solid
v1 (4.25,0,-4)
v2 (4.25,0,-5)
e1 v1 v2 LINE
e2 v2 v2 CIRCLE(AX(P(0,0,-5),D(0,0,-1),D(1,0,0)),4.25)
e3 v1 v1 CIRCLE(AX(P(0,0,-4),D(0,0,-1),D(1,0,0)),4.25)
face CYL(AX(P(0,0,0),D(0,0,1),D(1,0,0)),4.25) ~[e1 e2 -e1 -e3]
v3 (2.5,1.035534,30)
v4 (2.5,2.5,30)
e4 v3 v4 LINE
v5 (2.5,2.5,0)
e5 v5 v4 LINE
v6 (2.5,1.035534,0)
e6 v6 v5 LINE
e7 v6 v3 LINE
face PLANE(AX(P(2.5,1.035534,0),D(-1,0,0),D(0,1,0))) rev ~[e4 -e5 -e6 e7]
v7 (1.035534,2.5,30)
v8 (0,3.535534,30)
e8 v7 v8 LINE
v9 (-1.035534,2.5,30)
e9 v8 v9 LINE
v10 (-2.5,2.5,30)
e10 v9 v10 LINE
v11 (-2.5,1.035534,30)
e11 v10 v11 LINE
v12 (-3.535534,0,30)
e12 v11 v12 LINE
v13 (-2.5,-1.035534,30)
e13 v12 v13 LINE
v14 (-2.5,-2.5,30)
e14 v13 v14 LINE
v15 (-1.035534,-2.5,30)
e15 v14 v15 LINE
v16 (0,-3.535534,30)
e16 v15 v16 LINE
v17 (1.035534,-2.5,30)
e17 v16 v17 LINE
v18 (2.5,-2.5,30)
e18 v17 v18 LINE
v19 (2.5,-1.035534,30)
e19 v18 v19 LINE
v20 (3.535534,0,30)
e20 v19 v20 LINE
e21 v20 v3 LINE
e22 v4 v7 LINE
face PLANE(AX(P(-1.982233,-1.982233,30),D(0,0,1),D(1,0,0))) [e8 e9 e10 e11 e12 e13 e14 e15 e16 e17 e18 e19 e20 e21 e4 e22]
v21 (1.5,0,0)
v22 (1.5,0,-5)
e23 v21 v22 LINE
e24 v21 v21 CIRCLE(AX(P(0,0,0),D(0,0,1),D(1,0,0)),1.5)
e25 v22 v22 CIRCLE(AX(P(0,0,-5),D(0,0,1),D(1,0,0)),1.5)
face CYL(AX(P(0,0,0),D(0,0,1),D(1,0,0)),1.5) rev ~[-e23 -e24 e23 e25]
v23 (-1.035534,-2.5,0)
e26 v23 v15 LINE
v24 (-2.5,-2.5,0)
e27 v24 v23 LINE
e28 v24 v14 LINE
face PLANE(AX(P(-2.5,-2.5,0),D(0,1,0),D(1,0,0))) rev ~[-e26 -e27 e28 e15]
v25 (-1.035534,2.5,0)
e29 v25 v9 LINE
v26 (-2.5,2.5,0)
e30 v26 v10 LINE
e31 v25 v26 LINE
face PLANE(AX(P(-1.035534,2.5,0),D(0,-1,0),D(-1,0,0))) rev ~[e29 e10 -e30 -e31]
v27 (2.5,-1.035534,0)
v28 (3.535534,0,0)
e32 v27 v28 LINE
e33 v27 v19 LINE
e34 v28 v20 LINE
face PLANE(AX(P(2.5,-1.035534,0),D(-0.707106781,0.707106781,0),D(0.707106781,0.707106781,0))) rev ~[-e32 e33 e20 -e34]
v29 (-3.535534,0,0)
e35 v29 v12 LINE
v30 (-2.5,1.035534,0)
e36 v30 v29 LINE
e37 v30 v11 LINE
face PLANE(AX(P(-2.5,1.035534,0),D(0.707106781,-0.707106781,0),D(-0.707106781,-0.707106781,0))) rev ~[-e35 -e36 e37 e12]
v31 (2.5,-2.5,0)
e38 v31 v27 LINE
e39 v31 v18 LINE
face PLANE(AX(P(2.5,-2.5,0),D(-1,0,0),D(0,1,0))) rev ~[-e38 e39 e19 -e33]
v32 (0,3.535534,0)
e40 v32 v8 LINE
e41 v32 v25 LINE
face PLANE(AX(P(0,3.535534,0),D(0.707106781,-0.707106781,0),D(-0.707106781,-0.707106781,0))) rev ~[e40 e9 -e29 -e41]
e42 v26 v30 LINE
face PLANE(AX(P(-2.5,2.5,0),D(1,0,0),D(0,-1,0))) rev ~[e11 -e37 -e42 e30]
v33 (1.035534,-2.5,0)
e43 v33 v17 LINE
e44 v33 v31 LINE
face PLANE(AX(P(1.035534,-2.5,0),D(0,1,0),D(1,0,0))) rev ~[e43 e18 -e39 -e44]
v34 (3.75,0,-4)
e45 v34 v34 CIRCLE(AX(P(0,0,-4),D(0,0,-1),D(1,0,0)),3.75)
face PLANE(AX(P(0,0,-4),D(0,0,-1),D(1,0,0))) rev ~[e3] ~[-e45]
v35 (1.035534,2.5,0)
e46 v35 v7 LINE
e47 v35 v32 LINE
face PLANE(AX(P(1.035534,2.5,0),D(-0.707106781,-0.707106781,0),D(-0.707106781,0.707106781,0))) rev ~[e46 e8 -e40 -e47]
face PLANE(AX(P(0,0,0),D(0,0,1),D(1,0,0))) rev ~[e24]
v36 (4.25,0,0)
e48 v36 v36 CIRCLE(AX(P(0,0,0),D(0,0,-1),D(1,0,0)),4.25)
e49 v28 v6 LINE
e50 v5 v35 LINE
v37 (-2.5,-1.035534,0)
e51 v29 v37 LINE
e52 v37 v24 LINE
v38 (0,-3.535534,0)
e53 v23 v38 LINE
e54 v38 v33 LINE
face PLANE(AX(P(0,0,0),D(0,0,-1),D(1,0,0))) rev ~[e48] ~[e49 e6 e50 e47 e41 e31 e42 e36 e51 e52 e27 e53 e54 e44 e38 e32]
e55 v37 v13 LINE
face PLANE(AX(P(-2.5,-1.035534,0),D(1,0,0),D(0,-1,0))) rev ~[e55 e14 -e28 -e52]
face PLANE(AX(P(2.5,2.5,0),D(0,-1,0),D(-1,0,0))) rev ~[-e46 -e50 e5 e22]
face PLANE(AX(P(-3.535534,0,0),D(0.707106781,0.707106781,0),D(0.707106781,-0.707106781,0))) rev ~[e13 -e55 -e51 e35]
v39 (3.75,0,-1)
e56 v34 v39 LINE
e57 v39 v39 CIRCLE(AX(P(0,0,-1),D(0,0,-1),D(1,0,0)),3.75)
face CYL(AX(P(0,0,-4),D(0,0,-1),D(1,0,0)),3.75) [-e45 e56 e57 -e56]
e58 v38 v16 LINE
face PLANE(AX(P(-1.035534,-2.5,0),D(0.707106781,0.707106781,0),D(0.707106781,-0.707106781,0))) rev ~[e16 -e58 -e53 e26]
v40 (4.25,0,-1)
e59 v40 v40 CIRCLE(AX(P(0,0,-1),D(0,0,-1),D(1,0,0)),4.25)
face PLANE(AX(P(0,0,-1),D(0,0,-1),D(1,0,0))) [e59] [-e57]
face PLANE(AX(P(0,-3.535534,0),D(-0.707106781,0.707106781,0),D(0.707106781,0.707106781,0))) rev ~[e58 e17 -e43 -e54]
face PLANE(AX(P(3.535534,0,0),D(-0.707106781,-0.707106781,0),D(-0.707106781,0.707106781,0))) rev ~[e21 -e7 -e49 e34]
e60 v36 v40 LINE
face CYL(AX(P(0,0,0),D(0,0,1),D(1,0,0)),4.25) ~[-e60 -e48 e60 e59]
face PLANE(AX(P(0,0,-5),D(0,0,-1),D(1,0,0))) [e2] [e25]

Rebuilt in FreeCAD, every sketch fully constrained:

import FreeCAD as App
import Part
import Sketcher


def add_polygon(sketch, points):
    """Adds a closed chain of lines whose ends are joined by coincident constraints."""
    first, n = sketch.GeometryCount, len(points)
    for a, b in zip(points, points[1:] + points[:1]):
        sketch.addGeometry(Part.LineSegment(App.Vector(*a, 0), App.Vector(*b, 0)), False)
    for i in range(n):
        sketch.addConstraint(Sketcher.Constraint("Coincident", first + i, 2, first + (i + 1) % n, 1))

doc = App.newDocument("Part")
body = doc.addObject("PartDesign::Body", "Body")

sketch1 = body.newObject("Sketcher::SketchObject", "Sketch")
sketch1.AttachmentSupport = (doc.getObject("XY_Plane"), [""])
sketch1.MapMode = "FlatFace"
add_polygon(sketch1, [(-2.5, -2.5), (-1, -2.5), (0, -3.5), (1, -2.5), (2.5, -2.5), (2.5, -1), (3.5, 0), (2.5, 1), (2.5, 2.5), (1, 2.5), (0, 3.5), (-1, 2.5), (-2.5, 2.5), (-2.5, 1), (-3.5, 0), (-2.5, -1)])
sketch1.addConstraint([
    Sketcher.Constraint("Horizontal", 0),
    Sketcher.Constraint("Horizontal", 3),
    Sketcher.Constraint("Vertical", 4),
    Sketcher.Constraint("Vertical", 7),
    Sketcher.Constraint("Horizontal", 8),
    Sketcher.Constraint("Horizontal", 11),
    Sketcher.Constraint("Vertical", 12),
    Sketcher.Constraint("Vertical", 15),
    Sketcher.Constraint("Symmetric", 0, 2, 8, 2, -1, 1),
    Sketcher.Constraint("Symmetric", 1, 2, 9, 2, -1, 1),
    Sketcher.Constraint("Symmetric", 2, 2, 10, 2, -1, 1),
    Sketcher.Constraint("Symmetric", 4, 2, 12, 2, -1, 1),
    Sketcher.Constraint("Symmetric", 5, 2, 13, 2, -1, 1),
    Sketcher.Constraint("Symmetric", 6, 2, 14, 2, -1, 1),
    Sketcher.Constraint("Symmetric", 0, 2, 2, 2, -2),
    Sketcher.Constraint("Symmetric", 6, 2, 12, 2, -2),
    Sketcher.Constraint("PointOnObject", 1, 2, -2),
    Sketcher.Constraint("PointOnObject", 5, 2, -1),
    Sketcher.Constraint("Perpendicular", 1, 2),
    Sketcher.Constraint("Parallel", 2, 5),
    Sketcher.Constraint("Equal", 11, 4),
    Sketcher.Constraint("Equal", 2, 5),
    Sketcher.Constraint("DistanceY", 3, 2, 7, 2, 5.0),
    Sketcher.Constraint("DistanceX", 0, 1, 0, 2, 1.464466),
])
pad1 = body.newObject("PartDesign::Pad", "Pad")
pad1.Profile = sketch1
pad1.Length = 30

sketch2 = body.newObject("Sketcher::SketchObject", "Sketch001")
sketch2.AttachmentSupport = (doc.getObject("XY_Plane"), [""])
sketch2.MapMode = "FlatFace"
sketch2.addGeometry(Part.Circle(App.Vector(0, 0, 0), App.Vector(0, 0, 1), 4.2), False)
sketch2.addConstraint([
    Sketcher.Constraint("Coincident", 0, 3, -1, 1),
    Sketcher.Constraint("Diameter", 0, 8.5),
])
pad2 = body.newObject("PartDesign::Pad", "Pad001")
pad2.Profile = sketch2
pad2.Length = 5
pad2.Reversed = True

sketch3 = body.newObject("Sketcher::SketchObject", "Sketch002")
sketch3.AttachmentSupport = (doc.getObject("XY_Plane"), [""])
sketch3.MapMode = "FlatFace"
sketch3.AttachmentOffset = App.Placement(App.Vector(0, 0, -4), App.Rotation())
sketch3.addGeometry([
    Part.Circle(App.Vector(0, 0, 0), App.Vector(0, 0, 1), 4.2),
    Part.Circle(App.Vector(0, 0, 0), App.Vector(0, 0, 1), 3.8),
], False)
sketch3.addConstraint([
    Sketcher.Constraint("Coincident", 0, 3, -1, 1),
    Sketcher.Constraint("Coincident", 1, 3, -1, 1),
    Sketcher.Constraint("Diameter", 0, 8.5),
    Sketcher.Constraint("Diameter", 1, 7.5),
])
pocket1 = body.newObject("PartDesign::Pocket", "Pocket")
pocket1.Profile = sketch3
pocket1.Length = 3
pocket1.Reversed = True

sketch4 = body.newObject("Sketcher::SketchObject", "Sketch003")
sketch4.AttachmentSupport = (doc.getObject("XY_Plane"), [""])
sketch4.MapMode = "FlatFace"
sketch4.addGeometry(Part.Circle(App.Vector(0, 0, 0), App.Vector(0, 0, 1), 1.5), False)
sketch4.addConstraint([
    Sketcher.Constraint("Coincident", 0, 3, -1, 1),
    Sketcher.Constraint("Diameter", 0, 3.0),
])
pocket2 = body.newObject("PartDesign::Pocket", "Pocket001")
pocket2.Profile = sketch4
pocket2.Length = 5

doc.recompute()
